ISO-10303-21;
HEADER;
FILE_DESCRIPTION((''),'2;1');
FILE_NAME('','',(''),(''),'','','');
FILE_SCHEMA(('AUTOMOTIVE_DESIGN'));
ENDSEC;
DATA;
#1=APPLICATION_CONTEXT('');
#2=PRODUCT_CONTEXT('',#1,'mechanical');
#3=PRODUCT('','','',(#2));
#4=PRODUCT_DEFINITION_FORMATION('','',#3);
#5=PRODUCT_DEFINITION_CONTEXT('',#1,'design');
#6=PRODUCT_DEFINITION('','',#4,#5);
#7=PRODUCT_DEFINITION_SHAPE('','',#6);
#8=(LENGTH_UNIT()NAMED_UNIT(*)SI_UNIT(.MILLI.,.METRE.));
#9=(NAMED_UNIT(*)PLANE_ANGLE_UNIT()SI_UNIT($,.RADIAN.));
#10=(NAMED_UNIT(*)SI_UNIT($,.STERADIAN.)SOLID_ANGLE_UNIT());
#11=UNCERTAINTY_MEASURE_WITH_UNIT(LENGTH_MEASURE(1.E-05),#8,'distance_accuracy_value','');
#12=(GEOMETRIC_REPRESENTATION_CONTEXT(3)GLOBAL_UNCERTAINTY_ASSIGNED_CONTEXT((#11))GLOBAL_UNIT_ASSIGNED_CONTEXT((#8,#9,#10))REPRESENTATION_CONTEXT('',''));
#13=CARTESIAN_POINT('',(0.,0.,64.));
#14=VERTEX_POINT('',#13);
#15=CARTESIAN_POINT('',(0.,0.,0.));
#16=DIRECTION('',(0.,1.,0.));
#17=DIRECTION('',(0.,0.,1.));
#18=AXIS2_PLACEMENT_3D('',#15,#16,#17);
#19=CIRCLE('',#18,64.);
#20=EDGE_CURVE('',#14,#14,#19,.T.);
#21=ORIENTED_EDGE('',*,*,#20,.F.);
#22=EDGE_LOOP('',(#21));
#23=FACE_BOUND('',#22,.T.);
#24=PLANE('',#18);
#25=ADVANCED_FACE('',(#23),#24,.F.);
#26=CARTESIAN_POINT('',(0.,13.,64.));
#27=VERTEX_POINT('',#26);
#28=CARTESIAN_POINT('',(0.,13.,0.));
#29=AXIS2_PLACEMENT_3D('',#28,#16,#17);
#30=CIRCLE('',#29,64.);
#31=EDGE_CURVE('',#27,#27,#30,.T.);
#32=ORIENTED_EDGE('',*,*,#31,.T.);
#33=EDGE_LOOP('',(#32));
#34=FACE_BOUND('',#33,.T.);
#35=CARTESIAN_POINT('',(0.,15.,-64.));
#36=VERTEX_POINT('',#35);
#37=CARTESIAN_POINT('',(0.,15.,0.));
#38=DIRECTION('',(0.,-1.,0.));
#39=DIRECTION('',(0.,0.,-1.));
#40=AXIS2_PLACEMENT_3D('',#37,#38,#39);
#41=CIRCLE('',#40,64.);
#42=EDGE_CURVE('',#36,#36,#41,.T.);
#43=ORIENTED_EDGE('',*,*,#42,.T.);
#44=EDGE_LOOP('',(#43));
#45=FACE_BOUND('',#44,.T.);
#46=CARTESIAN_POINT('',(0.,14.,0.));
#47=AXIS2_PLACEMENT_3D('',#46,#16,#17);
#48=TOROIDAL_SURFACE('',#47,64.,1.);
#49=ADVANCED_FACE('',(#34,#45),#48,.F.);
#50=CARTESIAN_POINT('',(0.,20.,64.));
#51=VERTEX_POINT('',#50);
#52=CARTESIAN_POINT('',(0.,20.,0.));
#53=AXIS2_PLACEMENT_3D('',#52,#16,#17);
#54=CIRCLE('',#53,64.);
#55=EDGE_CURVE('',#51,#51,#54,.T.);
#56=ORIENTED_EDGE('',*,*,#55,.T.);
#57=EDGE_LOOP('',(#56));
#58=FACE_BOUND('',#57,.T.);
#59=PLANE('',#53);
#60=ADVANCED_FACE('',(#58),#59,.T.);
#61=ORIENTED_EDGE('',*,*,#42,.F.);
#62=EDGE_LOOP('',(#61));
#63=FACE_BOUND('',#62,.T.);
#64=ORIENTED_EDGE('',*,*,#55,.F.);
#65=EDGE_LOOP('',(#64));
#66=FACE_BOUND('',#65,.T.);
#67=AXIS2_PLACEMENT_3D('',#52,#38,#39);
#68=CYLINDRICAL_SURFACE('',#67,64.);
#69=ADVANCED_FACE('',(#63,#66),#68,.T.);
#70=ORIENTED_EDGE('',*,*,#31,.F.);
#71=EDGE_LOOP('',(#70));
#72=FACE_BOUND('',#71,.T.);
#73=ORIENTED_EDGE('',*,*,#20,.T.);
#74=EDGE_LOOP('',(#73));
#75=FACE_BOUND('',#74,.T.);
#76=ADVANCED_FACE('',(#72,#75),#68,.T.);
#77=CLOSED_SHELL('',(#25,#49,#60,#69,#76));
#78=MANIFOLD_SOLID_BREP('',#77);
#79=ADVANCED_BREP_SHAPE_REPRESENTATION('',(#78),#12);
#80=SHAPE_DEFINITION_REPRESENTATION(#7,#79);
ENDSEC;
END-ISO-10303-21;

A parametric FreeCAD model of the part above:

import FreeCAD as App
import Part
import Sketcher
Q = App.Units.Quantity

doc = App.newDocument("Part")
body = doc.addObject("PartDesign::Body", "Body")

sketch1 = doc.addObject("Sketcher::SketchObject", "Sketch")
body.addObject(sketch1)
sketch1.AttachmentSupport = (doc.XZ_Plane, [""])
sketch1.MapMode = "FlatFace"
sketch1.addGeometry(Part.Circle(App.Vector(0, 0, 0), App.Vector(0, 0, 1), 64), False)
sketch1.addConstraint([
    Sketcher.Constraint("Coincident", 0, 3, -1, 1),
    Sketcher.Constraint("Diameter", 0, Q("128 mm")),
])
pad1 = doc.addObject("PartDesign::Pad", "Pad")
body.addObject(pad1)
pad1.Profile = sketch1
pad1.Length = 20
pad1.Reversed = True

sketch2 = doc.addObject("Sketcher::SketchObject", "Sketch001")
body.addObject(sketch2)
sketch2.AttachmentSupport = (doc.XY_Plane, [""])
sketch2.MapMode = "FlatFace"
sketch2.addGeometry(Part.Circle(App.Vector(64, 14, 0), App.Vector(0, 0, 1), 1), False)
sketch2.addConstraint([
    Sketcher.Constraint("Diameter", 0, Q("2 mm")),
    Sketcher.Constraint("DistanceX", -1, 1, 0, 3, Q("64 mm")),
    Sketcher.Constraint("DistanceY", -1, 1, 0, 3, Q("14 mm")),
])
groove = doc.addObject("PartDesign::Groove", "Groove")
body.addObject(groove)
groove.Profile = sketch2
groove.ReferenceAxis = (sketch2, ["V_Axis"])
groove.Angle = 360

doc.recompute()
